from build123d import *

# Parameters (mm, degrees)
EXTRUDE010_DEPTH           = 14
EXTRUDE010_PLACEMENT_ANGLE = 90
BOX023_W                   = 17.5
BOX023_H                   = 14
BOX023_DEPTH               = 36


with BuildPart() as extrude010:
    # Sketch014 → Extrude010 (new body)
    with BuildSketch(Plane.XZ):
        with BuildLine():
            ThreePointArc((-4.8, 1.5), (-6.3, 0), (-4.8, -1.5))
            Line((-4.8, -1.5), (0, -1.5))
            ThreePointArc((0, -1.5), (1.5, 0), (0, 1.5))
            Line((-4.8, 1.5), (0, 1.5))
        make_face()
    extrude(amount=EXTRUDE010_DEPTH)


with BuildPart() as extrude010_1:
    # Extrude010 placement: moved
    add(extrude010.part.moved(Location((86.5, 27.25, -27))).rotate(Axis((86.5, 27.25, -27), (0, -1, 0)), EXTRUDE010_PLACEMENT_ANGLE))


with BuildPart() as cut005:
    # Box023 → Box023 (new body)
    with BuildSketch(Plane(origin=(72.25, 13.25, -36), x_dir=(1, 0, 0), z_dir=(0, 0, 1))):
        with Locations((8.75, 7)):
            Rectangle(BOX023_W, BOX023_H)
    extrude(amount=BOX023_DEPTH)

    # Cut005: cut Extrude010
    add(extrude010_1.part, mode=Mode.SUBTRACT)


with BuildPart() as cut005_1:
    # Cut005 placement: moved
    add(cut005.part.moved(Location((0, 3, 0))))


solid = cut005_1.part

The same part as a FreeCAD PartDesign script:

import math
import FreeCAD as App
import Part
import Sketcher
Q = App.Units.Quantity

doc = App.newDocument("Part")
body = doc.addObject("PartDesign::Body", "Body")

sketch1 = doc.addObject("Sketcher::SketchObject", "Sketch")
body.addObject(sketch1)
sketch1.AttachmentSupport = (doc.XZ_Plane, [""])
sketch1.MapMode = "FlatFace"
sketch1.addGeometry([
    Part.ArcOfCircle(Part.Circle(App.Vector(-4.8, 0, 0), App.Vector(0, 0, 1), 1.5), math.radians(90), math.radians(270)),
    Part.LineSegment(App.Vector(-4.8, -1.5, 0), App.Vector(0, -1.5, 0)),
    Part.ArcOfCircle(Part.Circle(App.Vector(0, 0, 0), App.Vector(0, 0, 1), 1.5), math.radians(-90), math.radians(90)),
    Part.LineSegment(App.Vector(0, 1.5, 0), App.Vector(-4.8, 1.5, 0)),
], False)
sketch1.addConstraint([
    Sketcher.Constraint("Tangent", 0, 2, 1, 1),
    Sketcher.Constraint("Tangent", 1, 2, 2, 1),
    Sketcher.Constraint("Tangent", 2, 2, 3, 1),
    Sketcher.Constraint("Tangent", 3, 2, 0, 1),
    Sketcher.Constraint("Horizontal", 1),
    Sketcher.Constraint("Horizontal", 3),
    Sketcher.Constraint("Coincident", 2, 3, -1, 1),
    Sketcher.Constraint("Radius", 0, Q("1.5 mm")),
    Sketcher.Constraint("DistanceX", 1, 1, 1, 2, Q("4.8 mm")),
])
pad1 = doc.addObject("PartDesign::Pad", "Pad")
body.addObject(pad1)
pad1.Profile = sketch1
pad1.Length = 14
body2 = doc.addObject("PartDesign::Body", "Body001")
doc.recompute()

body.Placement = App.Placement(App.Vector(86.5, 27.25, -27), App.Rotation(App.Vector(0, -1, 0), 90))
boolean = doc.addObject("PartDesign::Boolean", "Boolean")
body2.addObject(boolean)
boolean.Type = "Fuse"
boolean.addObjects([body])
body3 = doc.addObject("PartDesign::Body", "Body002")

sketch2 = doc.addObject("Sketcher::SketchObject", "Sketch001")
body3.addObject(sketch2)
sketch2.AttachmentSupport = (doc.getObject("XY_Plane002"), [""])
sketch2.MapMode = "FlatFace"
sketch2.AttachmentOffset = App.Placement(App.Vector(0, 0, -36), App.Rotation())
sketch2.addGeometry([
    Part.LineSegment(App.Vector(72, 27, 0), App.Vector(72, 13, 0)),
    Part.LineSegment(App.Vector(72, 13, 0), App.Vector(90, 13, 0)),
    Part.LineSegment(App.Vector(90, 13, 0), App.Vector(90, 27, 0)),
    Part.LineSegment(App.Vector(90, 27, 0), App.Vector(72, 27, 0)),
], False)
sketch2.addConstraint([
    Sketcher.Constraint("Coincident", 0, 2, 1, 1),
    Sketcher.Constraint("Coincident", 1, 2, 2, 1),
    Sketcher.Constraint("Coincident", 2, 2, 3, 1),
    Sketcher.Constraint("Coincident", 3, 2, 0, 1),
    Sketcher.Constraint("Vertical", 0),
    Sketcher.Constraint("Horizontal", 1),
    Sketcher.Constraint("Vertical", 2),
    Sketcher.Constraint("Horizontal", 3),
    Sketcher.Constraint("DistanceY", 0, 2, 0, 1, Q("14 mm")),
    Sketcher.Constraint("DistanceX", 1, 1, 1, 2, Q("17.5 mm")),
    Sketcher.Constraint("DistanceX", -1, 1, 0, 2, Q("72.25 mm")),
    Sketcher.Constraint("DistanceY", -1, 1, 0, 2, Q("13.25 mm")),
])
pad2 = doc.addObject("PartDesign::Pad", "Pad001")
body3.addObject(pad2)
pad2.Profile = sketch2
pad2.Length = 36
doc.recompute()

boolean2 = doc.addObject("PartDesign::Boolean", "Boolean001")
body3.addObject(boolean2)
boolean2.Type = "Cut"
boolean2.addObjects([body2])
body4 = doc.addObject("PartDesign::Body", "Body003")
doc.recompute()

body3.Placement = App.Placement(App.Vector(0, 3, 0), App.Rotation(App.Vector(0, 0, 1), 0))
boolean3 = doc.addObject("PartDesign::Boolean", "Boolean002")
body4.addObject(boolean3)
boolean3.Type = "Fuse"
boolean3.addObjects([body3])

doc.recompute()
